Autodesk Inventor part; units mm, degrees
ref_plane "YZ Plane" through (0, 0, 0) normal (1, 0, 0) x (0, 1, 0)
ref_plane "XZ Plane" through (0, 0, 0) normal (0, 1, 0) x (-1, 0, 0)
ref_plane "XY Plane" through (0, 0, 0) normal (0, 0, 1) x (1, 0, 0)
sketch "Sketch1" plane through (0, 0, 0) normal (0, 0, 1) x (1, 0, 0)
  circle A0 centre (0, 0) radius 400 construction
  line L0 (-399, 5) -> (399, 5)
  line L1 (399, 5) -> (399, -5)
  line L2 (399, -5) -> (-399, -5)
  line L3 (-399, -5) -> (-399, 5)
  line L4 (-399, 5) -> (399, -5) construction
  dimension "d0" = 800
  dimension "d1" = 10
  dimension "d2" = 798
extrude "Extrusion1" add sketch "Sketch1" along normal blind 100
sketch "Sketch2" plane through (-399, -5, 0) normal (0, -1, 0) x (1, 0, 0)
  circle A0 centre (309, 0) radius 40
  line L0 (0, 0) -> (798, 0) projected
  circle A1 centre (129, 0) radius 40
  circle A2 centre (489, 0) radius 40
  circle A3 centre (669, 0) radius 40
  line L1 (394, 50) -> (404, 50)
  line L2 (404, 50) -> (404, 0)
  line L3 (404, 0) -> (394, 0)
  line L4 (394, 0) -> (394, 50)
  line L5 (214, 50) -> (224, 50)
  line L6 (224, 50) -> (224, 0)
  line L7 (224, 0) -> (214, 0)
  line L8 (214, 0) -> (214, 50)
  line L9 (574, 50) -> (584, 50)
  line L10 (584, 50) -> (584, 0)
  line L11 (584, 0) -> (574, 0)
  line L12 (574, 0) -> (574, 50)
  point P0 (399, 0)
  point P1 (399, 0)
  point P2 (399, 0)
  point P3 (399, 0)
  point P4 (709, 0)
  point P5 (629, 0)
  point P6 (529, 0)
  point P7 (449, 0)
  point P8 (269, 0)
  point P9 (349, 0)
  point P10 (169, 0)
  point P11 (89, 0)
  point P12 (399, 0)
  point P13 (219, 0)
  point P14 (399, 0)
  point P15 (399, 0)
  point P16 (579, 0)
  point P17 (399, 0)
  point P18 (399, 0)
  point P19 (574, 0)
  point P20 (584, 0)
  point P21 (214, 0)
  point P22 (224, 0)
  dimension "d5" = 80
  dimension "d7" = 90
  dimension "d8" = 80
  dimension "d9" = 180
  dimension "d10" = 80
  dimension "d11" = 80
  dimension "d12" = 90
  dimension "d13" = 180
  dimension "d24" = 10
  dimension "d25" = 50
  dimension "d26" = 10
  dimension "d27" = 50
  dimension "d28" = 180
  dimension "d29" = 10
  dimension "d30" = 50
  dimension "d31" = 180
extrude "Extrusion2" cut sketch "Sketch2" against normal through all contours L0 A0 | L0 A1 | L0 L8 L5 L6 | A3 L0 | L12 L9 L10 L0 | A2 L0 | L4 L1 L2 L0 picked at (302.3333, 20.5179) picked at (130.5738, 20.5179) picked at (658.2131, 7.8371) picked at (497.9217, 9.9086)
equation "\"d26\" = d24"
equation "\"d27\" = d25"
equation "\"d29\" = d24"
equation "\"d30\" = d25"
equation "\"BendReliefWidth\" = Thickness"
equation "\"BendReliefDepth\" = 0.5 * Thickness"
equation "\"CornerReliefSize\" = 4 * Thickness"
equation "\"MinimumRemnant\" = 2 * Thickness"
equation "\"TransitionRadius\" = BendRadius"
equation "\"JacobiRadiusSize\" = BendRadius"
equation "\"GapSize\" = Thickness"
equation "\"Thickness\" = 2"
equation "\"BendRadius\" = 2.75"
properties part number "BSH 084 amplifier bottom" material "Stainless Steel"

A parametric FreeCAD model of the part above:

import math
import FreeCAD as App
import Part
import Sketcher

V = App.Vector
Q = App.Units.Quantity

doc = App.newDocument("Part")
body = doc.addObject("PartDesign::Body", "Body")

sketch1 = body.newObject("Sketcher::SketchObject", "Sketch")
sketch1.AttachmentSupport = (doc.getObject("XY_Plane"), [""])
sketch1.MapMode = "FlatFace"
sketch1.addGeometry([
    Part.LineSegment(V(399, 5, 0), V(-399, 5, 0)),
    Part.LineSegment(V(-399, 5, 0), V(-399, -5, 0)),
    Part.LineSegment(V(-399, -5, 0), V(399, -5, 0)),
    Part.LineSegment(V(399, -5, 0), V(399, 5, 0)),
], False)
sketch1.addConstraint([
    Sketcher.Constraint("Coincident", 0, 2, 1, 1),
    Sketcher.Constraint("Coincident", 1, 2, 2, 1),
    Sketcher.Constraint("Coincident", 2, 2, 3, 1),
    Sketcher.Constraint("Coincident", 3, 2, 0, 1),
    Sketcher.Constraint("Horizontal", 0),
    Sketcher.Constraint("Vertical", 1),
    Sketcher.Constraint("Horizontal", 2),
    Sketcher.Constraint("Vertical", 3),
    Sketcher.Constraint("Symmetric", 0, 2, 2, 2, -1, 1),
    Sketcher.Constraint("DistanceX", 0, 2, 0, 1, Q("798 mm")),
    Sketcher.Constraint("DistanceY", 1, 2, 1, 1, Q("10 mm")),
])
pad1 = body.newObject("PartDesign::Pad", "Pad")
pad1.Profile = sketch1
pad1.Length = 100

sketch2 = body.newObject("Sketcher::SketchObject", "Sketch001")
sketch2.AttachmentSupport = (doc.getObject("XZ_Plane"), [""])
sketch2.MapMode = "FlatFace"
sketch2.AttachmentOffset = App.Placement(V(0, 0, 5), App.Rotation())
sketch2.addGeometry([
    Part.LineSegment(V(-130, 0, 0), V(-50, 0, 0)),
    Part.ArcOfCircle(Part.Circle(V(-90, 0, 0), V(0, 0, 1), 40), math.radians(0), math.radians(180)),
    Part.LineSegment(V(-310, 0, 0), V(-230, 0, 0)),
    Part.ArcOfCircle(Part.Circle(V(-270, 0, 0), V(0, 0, 1), 40), math.radians(0), math.radians(180)),
    Part.LineSegment(V(-185, 0, 0), V(-175, 0, 0)),
    Part.LineSegment(V(-175, 0, 0), V(-175, 50, 0)),
    Part.LineSegment(V(-175, 50, 0), V(-185, 50, 0)),
    Part.LineSegment(V(-185, 50, 0), V(-185, 0, 0)),
    Part.ArcOfCircle(Part.Circle(V(270, 0, 0), V(0, 0, 1), 40), math.radians(0), math.radians(180)),
    Part.LineSegment(V(230, 0, 0), V(310, 0, 0)),
    Part.LineSegment(V(175, 50, 0), V(175, 0, 0)),
    Part.LineSegment(V(175, 0, 0), V(185, 0, 0)),
    Part.LineSegment(V(185, 0, 0), V(185, 50, 0)),
    Part.LineSegment(V(185, 50, 0), V(175, 50, 0)),
    Part.ArcOfCircle(Part.Circle(V(90, 0, 0), V(0, 0, 1), 40), math.radians(0), math.radians(180)),
    Part.LineSegment(V(50, 0, 0), V(130, 0, 0)),
    Part.LineSegment(V(-5, 50, 0), V(-5, 0, 0)),
    Part.LineSegment(V(-5, 0, 0), V(5, 0, 0)),
    Part.LineSegment(V(5, 0, 0), V(5, 50, 0)),
    Part.LineSegment(V(5, 50, 0), V(-5, 50, 0)),
], False)
sketch2.addConstraint([
    Sketcher.Constraint("Coincident", 0, 1, 1, 2),
    Sketcher.Constraint("Coincident", 1, 1, 0, 2),
    Sketcher.Constraint("Coincident", 2, 1, 3, 2),
    Sketcher.Constraint("Coincident", 3, 1, 2, 2),
    Sketcher.Constraint("Coincident", 4, 2, 5, 1),
    Sketcher.Constraint("Coincident", 5, 2, 6, 1),
    Sketcher.Constraint("Coincident", 6, 2, 7, 1),
    Sketcher.Constraint("Coincident", 7, 2, 4, 1),
    Sketcher.Constraint("Coincident", 8, 1, 9, 2),
    Sketcher.Constraint("Coincident", 9, 1, 8, 2),
    Sketcher.Constraint("Coincident", 10, 2, 11, 1),
    Sketcher.Constraint("Coincident", 11, 2, 12, 1),
    Sketcher.Constraint("Coincident", 12, 2, 13, 1),
    Sketcher.Constraint("Coincident", 13, 2, 10, 1),
    Sketcher.Constraint("Coincident", 14, 1, 15, 2),
    Sketcher.Constraint("Coincident", 15, 1, 14, 2),
    Sketcher.Constraint("Coincident", 16, 2, 17, 1),
    Sketcher.Constraint("Coincident", 17, 2, 18, 1),
    Sketcher.Constraint("Coincident", 18, 2, 19, 1),
    Sketcher.Constraint("Coincident", 19, 2, 16, 1),
    Sketcher.Constraint("Horizontal", 0),
    Sketcher.Constraint("Horizontal", 2),
    Sketcher.Constraint("Horizontal", 4),
    Sketcher.Constraint("Vertical", 5),
    Sketcher.Constraint("Horizontal", 6),
    Sketcher.Constraint("Vertical", 7),
    Sketcher.Constraint("Horizontal", 9),
    Sketcher.Constraint("Vertical", 10),
    Sketcher.Constraint("Horizontal", 11),
    Sketcher.Constraint("Vertical", 12),
    Sketcher.Constraint("Horizontal", 13),
    Sketcher.Constraint("Horizontal", 15),
    Sketcher.Constraint("Vertical", 16),
    Sketcher.Constraint("Horizontal", 17),
    Sketcher.Constraint("Vertical", 18),
    Sketcher.Constraint("Horizontal", 19),
    Sketcher.Constraint("Equal", 1, 3),
    Sketcher.Constraint("Equal", 3, 8),
    Sketcher.Constraint("Equal", 8, 14),
    Sketcher.Constraint("Symmetric", 3, 3, 8, 3, -1, 1),
    Sketcher.Constraint("Symmetric", 1, 3, 14, 3, -1, 1),
    Sketcher.Constraint("Symmetric", 4, 2, 10, 2, -1, 1),
    Sketcher.Constraint("Symmetric", 16, 2, 17, 2, -1, 1),
    Sketcher.Constraint("Symmetric", 7, 2, 11, 2, -2),
    Sketcher.Constraint("PointOnObject", 1, 3, -1),
    Sketcher.Constraint("PointOnObject", 3, 3, -1),
    Sketcher.Constraint("PointOnObject", 0, 1, -1),
    Sketcher.Constraint("PointOnObject", 2, 1, -1),
    Sketcher.Constraint("PointOnObject", 8, 1, -1),
    Sketcher.Constraint("PointOnObject", 14, 1, -1),
    Sketcher.Constraint("Horizontal", 6, 2, 12, 2),
    Sketcher.Constraint("Horizontal", 13, 2, 18, 2),
    Sketcher.Constraint("Equal", 13, 17),
    Sketcher.Constraint("Radius", 1, Q("40 mm")),
    Sketcher.Constraint("DistanceX", 4, 1, 4, 2, Q("10 mm")),
    Sketcher.Constraint("DistanceY", 5, 1, 5, 2, Q("50 mm")),
    Sketcher.Constraint("DistanceX", 1, 3, -1, 1, Q("90 mm")),
    Sketcher.Constraint("DistanceX", 3, 3, 1, 3, Q("180 mm")),
    Sketcher.Constraint("DistanceX", 4, 2, -1, 1, Q("175 mm")),
])
pocket1 = body.newObject("PartDesign::Pocket", "Pocket")
pocket1.Profile = sketch2
pocket1.Type = "ThroughAll"

doc.recompute()
